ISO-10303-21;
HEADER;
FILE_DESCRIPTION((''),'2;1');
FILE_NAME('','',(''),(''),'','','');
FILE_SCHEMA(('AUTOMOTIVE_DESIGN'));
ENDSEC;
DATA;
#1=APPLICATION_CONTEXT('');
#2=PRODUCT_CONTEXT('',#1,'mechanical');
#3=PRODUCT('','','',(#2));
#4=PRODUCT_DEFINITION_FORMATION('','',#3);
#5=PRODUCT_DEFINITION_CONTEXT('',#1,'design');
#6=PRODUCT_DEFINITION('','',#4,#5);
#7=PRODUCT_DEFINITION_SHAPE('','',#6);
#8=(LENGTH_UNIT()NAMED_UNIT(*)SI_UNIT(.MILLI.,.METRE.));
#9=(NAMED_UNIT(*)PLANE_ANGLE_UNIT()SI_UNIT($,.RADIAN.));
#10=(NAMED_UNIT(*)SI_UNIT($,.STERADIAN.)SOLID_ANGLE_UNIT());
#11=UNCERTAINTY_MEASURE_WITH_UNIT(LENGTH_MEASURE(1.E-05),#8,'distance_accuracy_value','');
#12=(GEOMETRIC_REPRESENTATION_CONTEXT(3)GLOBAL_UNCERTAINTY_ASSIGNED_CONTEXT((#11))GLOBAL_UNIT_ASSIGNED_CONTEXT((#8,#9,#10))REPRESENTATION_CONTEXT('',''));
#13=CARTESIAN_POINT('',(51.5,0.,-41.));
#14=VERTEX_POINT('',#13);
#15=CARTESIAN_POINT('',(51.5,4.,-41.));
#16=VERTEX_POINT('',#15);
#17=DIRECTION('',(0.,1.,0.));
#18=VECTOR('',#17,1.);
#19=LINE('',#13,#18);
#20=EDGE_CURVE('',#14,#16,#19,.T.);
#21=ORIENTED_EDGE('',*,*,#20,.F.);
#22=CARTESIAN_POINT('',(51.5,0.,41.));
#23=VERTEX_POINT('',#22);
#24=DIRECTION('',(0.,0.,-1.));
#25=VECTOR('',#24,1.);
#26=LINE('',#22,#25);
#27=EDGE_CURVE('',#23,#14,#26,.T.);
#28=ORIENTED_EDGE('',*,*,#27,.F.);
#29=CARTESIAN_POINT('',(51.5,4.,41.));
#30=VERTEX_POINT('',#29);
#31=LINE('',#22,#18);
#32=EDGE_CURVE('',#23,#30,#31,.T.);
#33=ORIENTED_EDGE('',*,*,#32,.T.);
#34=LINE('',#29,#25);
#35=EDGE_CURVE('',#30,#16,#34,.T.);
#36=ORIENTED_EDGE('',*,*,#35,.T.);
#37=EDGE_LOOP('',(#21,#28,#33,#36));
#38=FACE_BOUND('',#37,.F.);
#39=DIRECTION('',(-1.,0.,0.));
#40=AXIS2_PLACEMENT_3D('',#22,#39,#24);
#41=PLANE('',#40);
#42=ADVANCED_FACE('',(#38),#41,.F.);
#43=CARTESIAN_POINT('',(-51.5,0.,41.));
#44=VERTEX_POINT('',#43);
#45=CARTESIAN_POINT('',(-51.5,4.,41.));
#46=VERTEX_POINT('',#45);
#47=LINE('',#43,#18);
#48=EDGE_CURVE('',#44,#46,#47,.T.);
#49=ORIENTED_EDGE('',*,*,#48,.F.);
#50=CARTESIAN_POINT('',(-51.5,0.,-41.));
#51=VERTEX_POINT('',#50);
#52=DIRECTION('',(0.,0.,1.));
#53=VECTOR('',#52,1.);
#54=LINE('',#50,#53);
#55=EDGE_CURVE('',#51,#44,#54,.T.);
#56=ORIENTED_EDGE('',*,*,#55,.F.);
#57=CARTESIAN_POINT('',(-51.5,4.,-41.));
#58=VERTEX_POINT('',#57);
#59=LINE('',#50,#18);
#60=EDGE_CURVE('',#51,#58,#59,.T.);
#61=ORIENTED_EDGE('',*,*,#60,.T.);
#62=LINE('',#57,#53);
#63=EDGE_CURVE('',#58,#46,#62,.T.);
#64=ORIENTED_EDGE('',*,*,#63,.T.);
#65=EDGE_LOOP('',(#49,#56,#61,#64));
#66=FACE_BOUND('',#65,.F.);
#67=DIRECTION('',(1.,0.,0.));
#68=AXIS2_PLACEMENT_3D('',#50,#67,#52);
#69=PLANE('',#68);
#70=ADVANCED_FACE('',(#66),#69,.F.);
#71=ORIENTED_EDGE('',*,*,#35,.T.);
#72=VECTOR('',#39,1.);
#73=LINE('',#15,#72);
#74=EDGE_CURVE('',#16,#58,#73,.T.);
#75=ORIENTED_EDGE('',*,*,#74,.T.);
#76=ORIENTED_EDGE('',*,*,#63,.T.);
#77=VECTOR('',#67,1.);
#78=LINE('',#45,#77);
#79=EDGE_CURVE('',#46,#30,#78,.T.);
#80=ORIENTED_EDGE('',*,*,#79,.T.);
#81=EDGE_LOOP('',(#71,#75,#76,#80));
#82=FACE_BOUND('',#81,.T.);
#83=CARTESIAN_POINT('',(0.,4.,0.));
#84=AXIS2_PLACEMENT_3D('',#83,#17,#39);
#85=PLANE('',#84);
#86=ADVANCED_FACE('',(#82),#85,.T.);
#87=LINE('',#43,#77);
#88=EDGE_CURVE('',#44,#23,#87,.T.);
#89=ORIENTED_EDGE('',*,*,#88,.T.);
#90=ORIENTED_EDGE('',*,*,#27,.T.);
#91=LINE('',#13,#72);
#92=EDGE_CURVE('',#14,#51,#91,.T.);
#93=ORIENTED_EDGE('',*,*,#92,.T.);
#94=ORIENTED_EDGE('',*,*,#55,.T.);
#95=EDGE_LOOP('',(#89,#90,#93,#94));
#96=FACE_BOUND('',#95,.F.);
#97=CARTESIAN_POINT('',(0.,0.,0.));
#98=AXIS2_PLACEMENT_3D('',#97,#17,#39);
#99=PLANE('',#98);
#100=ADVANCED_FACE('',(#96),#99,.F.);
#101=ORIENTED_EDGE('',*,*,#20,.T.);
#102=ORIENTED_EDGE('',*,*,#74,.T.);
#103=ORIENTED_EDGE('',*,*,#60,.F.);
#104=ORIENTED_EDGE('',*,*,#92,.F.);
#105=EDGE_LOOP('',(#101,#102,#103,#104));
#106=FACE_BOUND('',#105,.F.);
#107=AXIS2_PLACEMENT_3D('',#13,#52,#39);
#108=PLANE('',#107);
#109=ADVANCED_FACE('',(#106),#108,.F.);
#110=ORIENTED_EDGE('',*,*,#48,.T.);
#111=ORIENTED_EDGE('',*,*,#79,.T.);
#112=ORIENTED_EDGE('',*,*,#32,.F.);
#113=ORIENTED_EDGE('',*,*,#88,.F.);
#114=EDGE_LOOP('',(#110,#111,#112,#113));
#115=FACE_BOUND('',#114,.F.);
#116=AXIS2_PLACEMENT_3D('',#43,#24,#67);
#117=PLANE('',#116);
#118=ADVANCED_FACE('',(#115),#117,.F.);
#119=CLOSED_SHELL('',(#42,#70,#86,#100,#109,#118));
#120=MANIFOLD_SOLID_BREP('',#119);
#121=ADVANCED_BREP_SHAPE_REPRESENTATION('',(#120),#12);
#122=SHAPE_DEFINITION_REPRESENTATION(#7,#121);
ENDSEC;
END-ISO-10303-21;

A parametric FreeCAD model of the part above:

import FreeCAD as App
import Part
import Sketcher

V = App.Vector
Q = App.Units.Quantity

doc = App.newDocument("Part")
params = doc.addObject("Spreadsheet::Sheet", "Params")
for row, (alias, value) in enumerate([
    ("sketch1_width", "103 mm"),
    ("sketch1_height", "82 mm"),
    ("pad1_length", "4 mm"),
], start=1):
    params.set(f"A{row}", alias)
    params.set(f"B{row}", "=" + value)
    params.setAlias(f"B{row}", alias)

body = doc.addObject("PartDesign::Body", "Body")

sketch1 = body.newObject("Sketcher::SketchObject", "Sketch")
sketch1.AttachmentSupport = (doc.getObject("XZ_Plane"), [""])
sketch1.MapMode = "FlatFace"
sketch1.addGeometry([
    Part.LineSegment(V(52, -41, 0), V(-52, -41, 0)),
    Part.LineSegment(V(-52, -41, 0), V(-52, 41, 0)),
    Part.LineSegment(V(-52, 41, 0), V(52, 41, 0)),
    Part.LineSegment(V(52, 41, 0), V(52, -41, 0)),
], False)
sketch1.addConstraint([
    Sketcher.Constraint("Coincident", 0, 2, 1, 1),
    Sketcher.Constraint("Coincident", 1, 2, 2, 1),
    Sketcher.Constraint("Coincident", 2, 2, 3, 1),
    Sketcher.Constraint("Coincident", 3, 2, 0, 1),
    Sketcher.Constraint("Horizontal", 0),
    Sketcher.Constraint("Vertical", 1),
    Sketcher.Constraint("Horizontal", 2),
    Sketcher.Constraint("Vertical", 3),
    Sketcher.Constraint("Symmetric", 0, 2, 2, 2, -1, 1),
    Sketcher.Constraint("DistanceX", 0, 2, 0, 1, Q("103 mm")),
    Sketcher.Constraint("DistanceY", 1, 1, 1, 2, Q("82 mm")),
])
sketch1.setExpression("Constraints[9]", "Params.sketch1_width")
sketch1.setExpression("Constraints[10]", "Params.sketch1_height")
pad1 = body.newObject("PartDesign::Pad", "Pad")
pad1.Profile = sketch1
pad1.setExpression("Length", "Params.pad1_length")
pad1.Reversed = True

doc.recompute()
